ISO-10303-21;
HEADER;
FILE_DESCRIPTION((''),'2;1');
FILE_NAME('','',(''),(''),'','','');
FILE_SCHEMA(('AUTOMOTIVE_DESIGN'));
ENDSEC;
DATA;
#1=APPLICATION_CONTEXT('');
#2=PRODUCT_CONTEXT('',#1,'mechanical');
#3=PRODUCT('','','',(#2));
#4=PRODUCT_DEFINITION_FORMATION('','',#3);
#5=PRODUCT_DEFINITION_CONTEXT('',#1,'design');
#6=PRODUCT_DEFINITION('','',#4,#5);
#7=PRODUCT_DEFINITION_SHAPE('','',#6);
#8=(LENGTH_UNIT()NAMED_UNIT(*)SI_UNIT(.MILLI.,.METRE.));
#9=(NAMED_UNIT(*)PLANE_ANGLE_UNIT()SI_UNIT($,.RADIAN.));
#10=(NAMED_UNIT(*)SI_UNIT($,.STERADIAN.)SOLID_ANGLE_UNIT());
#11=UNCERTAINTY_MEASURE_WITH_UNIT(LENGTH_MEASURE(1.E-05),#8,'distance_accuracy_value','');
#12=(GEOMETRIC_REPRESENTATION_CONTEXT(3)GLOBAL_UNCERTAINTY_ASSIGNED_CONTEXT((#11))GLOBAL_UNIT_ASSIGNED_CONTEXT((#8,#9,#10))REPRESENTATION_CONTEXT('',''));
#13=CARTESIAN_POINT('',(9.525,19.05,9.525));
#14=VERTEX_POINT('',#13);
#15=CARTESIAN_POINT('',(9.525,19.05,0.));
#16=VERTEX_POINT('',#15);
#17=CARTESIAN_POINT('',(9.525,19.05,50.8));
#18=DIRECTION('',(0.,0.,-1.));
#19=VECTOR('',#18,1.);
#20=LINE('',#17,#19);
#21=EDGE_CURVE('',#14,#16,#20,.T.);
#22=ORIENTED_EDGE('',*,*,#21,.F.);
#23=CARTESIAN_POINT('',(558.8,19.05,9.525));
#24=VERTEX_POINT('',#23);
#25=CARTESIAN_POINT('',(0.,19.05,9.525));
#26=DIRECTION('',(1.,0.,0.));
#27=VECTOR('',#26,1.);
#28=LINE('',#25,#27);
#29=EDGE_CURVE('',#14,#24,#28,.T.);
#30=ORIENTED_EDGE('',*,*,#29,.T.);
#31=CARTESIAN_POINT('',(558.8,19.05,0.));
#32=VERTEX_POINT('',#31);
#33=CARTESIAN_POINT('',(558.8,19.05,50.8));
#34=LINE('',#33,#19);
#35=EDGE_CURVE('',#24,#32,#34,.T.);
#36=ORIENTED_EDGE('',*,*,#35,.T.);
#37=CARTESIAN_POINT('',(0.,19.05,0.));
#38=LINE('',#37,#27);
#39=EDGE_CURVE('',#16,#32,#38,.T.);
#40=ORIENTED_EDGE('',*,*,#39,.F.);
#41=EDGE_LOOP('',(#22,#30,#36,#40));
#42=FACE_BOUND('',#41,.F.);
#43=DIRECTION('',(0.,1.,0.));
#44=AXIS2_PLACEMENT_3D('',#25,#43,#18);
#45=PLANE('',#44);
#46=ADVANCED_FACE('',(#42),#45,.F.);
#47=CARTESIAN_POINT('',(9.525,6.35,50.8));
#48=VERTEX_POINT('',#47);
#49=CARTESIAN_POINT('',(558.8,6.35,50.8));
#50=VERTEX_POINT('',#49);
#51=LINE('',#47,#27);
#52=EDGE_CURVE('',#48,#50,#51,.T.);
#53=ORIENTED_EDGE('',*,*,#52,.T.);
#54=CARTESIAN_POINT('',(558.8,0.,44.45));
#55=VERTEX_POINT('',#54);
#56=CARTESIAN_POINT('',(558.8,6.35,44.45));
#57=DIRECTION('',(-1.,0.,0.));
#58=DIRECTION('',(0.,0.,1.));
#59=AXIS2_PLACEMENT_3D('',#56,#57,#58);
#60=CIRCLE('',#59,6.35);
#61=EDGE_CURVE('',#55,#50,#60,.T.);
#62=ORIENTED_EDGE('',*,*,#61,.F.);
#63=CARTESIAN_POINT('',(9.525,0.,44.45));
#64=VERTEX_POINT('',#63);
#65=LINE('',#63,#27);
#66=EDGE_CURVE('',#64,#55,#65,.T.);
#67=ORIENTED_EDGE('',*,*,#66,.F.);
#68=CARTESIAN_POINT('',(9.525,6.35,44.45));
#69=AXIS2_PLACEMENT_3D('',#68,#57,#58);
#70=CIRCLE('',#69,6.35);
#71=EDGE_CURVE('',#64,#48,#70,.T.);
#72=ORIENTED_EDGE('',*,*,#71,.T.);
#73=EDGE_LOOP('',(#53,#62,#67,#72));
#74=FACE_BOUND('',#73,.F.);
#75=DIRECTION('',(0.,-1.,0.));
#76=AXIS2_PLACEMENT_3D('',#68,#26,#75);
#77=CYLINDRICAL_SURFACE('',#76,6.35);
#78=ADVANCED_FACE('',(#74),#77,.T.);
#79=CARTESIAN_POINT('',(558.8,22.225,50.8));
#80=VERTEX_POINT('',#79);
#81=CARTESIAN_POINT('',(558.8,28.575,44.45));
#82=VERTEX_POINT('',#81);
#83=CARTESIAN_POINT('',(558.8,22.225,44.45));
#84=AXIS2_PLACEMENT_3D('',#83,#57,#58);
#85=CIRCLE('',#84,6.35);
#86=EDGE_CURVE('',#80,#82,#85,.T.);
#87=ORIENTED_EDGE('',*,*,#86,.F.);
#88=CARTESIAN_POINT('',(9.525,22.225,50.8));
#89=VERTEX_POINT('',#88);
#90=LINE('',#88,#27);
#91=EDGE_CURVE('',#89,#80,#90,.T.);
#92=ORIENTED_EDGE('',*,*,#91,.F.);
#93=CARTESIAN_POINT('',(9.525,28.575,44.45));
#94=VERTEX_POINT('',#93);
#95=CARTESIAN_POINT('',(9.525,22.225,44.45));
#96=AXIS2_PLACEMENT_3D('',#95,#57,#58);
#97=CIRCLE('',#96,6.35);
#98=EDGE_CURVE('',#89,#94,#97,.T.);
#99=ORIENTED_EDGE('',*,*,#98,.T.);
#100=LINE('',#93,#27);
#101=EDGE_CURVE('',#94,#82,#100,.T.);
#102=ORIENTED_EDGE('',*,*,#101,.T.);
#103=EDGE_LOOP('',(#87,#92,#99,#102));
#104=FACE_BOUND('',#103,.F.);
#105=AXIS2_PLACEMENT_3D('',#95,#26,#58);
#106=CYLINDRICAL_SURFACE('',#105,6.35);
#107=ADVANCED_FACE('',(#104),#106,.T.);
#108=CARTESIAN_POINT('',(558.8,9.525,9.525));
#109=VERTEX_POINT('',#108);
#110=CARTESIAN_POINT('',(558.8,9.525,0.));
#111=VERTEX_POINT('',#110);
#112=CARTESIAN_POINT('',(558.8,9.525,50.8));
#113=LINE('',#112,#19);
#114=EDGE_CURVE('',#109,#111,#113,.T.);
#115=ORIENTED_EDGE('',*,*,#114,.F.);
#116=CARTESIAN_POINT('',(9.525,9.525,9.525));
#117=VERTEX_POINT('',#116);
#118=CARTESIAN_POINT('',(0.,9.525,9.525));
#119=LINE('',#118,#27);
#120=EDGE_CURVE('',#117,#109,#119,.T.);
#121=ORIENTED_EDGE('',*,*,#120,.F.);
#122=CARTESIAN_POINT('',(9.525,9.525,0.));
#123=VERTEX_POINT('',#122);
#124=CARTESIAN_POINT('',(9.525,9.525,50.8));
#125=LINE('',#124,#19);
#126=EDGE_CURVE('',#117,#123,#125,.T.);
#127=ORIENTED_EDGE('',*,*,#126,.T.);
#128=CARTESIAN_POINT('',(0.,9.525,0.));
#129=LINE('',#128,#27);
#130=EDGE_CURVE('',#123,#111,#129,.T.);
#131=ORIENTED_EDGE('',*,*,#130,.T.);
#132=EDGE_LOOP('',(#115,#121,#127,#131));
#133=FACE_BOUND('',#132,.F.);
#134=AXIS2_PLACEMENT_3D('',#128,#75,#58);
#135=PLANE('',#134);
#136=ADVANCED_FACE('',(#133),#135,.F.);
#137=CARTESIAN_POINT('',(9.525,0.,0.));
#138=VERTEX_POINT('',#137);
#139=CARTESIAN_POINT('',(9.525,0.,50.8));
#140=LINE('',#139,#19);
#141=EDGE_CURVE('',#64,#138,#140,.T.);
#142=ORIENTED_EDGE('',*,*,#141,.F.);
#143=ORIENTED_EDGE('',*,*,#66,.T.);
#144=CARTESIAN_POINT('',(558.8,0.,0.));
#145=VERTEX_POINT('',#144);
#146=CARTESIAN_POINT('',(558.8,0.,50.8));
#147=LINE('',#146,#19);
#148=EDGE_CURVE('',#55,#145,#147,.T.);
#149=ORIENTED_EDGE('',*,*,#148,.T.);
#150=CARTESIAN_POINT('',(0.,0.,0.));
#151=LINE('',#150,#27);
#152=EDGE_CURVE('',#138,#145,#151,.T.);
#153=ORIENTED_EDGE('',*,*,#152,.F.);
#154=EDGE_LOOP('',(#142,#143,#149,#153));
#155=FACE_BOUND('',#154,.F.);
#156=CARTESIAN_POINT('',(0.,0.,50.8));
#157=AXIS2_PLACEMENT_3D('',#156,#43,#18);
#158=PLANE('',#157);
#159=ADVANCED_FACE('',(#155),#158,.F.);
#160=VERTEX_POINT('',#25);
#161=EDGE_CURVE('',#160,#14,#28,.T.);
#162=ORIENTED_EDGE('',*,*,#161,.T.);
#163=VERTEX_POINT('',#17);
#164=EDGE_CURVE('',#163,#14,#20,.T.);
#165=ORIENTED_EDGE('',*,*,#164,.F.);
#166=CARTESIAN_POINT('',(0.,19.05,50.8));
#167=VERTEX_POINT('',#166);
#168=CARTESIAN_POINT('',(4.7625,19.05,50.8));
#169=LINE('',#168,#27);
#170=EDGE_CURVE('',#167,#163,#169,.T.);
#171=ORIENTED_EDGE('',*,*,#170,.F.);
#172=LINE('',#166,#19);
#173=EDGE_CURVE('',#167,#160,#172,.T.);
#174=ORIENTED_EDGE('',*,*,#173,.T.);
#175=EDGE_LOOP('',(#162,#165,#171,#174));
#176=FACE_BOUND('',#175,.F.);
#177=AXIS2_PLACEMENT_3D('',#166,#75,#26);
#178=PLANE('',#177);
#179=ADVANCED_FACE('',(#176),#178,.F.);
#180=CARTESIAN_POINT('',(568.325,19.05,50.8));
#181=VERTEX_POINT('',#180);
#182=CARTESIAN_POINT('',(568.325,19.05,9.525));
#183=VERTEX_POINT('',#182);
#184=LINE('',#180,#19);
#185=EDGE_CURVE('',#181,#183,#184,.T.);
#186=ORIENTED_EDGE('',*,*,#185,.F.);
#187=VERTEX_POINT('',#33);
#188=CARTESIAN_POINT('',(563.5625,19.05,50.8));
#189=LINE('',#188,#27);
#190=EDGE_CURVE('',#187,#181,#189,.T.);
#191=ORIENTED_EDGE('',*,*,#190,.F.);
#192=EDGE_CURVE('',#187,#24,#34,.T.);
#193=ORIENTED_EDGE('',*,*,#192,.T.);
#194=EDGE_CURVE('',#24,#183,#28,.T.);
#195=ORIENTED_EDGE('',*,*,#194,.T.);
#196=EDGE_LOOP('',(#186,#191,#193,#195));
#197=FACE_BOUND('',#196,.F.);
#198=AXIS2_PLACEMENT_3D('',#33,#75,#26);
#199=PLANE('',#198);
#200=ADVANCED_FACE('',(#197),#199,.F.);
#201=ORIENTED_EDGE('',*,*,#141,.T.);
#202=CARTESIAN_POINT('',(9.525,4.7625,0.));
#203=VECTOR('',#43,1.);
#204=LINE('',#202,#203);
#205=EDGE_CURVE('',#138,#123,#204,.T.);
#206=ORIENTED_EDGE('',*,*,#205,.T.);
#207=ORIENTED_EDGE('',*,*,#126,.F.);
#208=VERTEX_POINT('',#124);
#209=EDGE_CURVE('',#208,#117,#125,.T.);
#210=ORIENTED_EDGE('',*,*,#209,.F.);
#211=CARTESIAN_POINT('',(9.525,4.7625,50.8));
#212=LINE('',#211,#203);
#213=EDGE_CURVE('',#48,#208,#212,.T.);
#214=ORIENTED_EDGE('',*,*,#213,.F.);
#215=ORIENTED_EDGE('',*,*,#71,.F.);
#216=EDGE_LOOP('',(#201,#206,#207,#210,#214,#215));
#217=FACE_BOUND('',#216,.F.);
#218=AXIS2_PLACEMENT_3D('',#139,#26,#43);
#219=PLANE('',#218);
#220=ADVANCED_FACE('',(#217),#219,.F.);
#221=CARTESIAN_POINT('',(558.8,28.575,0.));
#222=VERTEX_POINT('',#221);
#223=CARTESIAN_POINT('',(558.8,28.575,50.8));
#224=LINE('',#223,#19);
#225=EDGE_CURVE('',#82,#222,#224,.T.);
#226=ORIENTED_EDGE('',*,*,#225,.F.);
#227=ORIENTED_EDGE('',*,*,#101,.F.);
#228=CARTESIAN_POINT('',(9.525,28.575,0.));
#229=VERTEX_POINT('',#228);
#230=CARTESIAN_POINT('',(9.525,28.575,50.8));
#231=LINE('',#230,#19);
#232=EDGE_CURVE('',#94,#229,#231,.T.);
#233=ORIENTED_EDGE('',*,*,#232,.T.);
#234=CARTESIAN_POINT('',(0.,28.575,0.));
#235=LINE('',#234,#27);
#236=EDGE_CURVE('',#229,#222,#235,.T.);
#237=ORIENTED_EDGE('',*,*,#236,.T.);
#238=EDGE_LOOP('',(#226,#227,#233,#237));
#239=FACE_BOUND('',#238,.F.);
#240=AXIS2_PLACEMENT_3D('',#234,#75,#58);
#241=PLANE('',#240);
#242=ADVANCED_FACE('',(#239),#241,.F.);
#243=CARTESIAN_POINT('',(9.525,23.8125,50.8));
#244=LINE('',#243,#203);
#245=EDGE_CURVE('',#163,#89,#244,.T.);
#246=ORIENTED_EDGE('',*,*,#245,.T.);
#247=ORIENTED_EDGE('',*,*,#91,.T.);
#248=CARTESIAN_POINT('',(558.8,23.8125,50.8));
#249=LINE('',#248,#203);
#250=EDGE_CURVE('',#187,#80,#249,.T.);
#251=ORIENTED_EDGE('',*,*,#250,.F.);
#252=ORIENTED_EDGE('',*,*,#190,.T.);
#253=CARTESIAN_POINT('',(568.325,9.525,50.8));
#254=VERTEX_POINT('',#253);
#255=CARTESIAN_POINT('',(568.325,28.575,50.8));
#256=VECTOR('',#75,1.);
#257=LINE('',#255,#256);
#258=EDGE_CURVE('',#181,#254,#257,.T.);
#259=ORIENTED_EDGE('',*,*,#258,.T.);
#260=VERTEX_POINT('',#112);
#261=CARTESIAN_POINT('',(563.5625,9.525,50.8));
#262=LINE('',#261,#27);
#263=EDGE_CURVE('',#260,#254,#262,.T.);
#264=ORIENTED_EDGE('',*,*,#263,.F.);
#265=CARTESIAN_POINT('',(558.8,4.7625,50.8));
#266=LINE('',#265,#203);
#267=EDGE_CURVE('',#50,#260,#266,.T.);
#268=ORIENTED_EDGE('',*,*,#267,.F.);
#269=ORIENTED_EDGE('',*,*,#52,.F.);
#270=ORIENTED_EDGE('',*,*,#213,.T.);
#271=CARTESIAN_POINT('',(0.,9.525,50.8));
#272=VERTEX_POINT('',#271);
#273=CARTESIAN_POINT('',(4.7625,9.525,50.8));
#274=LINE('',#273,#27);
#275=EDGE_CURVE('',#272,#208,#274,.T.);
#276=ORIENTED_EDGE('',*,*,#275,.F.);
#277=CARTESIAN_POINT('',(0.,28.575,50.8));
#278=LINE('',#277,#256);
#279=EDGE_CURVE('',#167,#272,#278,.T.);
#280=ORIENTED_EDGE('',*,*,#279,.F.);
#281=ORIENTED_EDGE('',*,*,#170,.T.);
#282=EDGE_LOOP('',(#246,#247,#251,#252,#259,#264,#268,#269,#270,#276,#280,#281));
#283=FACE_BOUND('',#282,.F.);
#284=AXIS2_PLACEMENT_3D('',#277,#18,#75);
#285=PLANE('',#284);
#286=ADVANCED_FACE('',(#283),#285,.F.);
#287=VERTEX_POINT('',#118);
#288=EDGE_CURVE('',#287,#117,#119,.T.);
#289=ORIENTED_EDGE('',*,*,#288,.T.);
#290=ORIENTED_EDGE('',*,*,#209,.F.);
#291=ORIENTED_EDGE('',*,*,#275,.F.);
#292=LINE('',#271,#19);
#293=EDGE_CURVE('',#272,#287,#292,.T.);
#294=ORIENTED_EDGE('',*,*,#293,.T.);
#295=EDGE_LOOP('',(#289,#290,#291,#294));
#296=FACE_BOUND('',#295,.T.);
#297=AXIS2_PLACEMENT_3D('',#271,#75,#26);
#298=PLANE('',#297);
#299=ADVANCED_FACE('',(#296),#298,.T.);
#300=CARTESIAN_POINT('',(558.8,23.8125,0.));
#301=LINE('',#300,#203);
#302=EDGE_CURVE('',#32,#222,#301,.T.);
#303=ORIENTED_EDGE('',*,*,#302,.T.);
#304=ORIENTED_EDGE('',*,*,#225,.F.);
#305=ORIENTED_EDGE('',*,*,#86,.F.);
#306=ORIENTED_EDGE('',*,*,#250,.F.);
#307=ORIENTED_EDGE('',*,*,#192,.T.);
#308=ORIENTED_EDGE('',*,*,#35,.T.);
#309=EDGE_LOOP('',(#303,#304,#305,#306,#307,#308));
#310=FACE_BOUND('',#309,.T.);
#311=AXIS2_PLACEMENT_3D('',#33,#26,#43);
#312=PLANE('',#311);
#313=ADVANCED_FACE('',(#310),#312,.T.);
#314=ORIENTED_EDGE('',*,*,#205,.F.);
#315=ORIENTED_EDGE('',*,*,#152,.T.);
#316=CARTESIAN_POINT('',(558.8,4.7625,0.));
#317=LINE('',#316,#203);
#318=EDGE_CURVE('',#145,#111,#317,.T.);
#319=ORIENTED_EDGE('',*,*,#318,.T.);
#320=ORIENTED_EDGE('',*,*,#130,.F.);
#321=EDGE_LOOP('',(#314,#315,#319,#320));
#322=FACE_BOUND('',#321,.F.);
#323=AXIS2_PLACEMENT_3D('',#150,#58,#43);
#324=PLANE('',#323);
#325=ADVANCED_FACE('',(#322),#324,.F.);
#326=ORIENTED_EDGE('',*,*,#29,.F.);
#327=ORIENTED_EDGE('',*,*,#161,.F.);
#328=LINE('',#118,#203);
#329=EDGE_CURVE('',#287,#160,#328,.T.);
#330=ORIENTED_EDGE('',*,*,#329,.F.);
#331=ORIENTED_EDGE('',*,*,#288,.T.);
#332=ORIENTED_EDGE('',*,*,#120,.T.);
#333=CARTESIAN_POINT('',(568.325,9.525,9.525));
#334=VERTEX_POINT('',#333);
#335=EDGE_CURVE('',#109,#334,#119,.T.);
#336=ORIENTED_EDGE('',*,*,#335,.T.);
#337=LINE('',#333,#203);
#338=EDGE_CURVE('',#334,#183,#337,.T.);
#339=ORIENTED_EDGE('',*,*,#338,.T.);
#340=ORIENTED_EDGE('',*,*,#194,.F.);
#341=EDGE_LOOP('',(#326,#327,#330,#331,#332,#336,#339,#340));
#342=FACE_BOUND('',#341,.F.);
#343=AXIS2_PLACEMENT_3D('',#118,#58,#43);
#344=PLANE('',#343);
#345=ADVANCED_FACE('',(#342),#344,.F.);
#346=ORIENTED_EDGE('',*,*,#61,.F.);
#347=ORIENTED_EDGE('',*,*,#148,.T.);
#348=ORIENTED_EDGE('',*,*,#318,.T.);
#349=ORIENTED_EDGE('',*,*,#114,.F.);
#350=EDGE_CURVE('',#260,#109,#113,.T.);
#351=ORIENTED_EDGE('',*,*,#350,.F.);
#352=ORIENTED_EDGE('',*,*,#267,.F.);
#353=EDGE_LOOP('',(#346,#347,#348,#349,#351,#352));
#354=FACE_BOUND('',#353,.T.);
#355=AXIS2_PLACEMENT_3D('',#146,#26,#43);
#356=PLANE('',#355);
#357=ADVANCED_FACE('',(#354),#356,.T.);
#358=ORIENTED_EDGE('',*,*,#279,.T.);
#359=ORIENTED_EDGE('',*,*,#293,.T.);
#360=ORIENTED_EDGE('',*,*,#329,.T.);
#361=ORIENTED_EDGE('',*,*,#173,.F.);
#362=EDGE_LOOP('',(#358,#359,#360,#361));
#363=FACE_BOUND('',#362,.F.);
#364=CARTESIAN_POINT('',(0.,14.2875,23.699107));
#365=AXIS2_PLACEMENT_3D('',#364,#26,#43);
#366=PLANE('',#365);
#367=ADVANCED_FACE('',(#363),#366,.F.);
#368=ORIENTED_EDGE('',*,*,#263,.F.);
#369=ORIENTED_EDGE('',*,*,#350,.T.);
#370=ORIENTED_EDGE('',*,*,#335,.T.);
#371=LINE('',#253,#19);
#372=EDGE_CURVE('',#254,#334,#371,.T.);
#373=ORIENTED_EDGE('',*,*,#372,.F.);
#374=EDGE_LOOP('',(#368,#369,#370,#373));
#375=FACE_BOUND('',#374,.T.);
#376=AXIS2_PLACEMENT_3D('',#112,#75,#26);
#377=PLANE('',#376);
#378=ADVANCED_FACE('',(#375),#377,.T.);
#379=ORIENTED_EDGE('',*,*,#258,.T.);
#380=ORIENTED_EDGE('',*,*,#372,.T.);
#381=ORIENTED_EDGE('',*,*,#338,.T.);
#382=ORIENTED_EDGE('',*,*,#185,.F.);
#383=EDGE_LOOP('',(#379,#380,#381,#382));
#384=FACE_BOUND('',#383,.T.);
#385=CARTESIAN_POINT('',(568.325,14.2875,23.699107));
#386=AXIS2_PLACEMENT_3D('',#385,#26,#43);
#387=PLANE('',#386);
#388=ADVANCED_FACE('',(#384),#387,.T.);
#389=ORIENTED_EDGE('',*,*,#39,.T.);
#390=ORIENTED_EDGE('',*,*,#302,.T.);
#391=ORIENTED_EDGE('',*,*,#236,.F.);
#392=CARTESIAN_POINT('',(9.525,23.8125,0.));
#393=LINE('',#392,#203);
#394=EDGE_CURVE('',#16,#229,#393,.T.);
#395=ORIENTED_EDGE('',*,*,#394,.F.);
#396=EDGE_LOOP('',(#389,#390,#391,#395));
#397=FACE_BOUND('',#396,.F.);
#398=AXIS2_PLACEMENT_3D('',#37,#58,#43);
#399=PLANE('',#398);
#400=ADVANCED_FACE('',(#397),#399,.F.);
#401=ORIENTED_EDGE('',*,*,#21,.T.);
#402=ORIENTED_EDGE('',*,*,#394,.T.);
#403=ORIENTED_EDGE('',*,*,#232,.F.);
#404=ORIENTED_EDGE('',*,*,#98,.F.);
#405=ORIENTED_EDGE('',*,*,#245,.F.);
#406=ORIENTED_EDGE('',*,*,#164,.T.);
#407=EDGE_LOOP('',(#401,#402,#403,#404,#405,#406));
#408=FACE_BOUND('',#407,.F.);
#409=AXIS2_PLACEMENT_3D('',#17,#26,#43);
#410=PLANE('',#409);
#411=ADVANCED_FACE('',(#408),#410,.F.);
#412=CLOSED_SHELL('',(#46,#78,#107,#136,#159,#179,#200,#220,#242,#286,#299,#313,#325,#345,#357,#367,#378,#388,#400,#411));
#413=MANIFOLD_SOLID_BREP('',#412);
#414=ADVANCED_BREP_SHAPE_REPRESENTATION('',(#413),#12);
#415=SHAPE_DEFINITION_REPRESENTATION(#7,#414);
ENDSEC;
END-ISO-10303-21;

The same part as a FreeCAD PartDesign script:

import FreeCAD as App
import Part
import Sketcher
from FreeCAD import Vector
Q = App.Units.Quantity


def edges_at(feature, points):
    """Names of the edges that pass closest to the given points."""
    edges = feature.Shape.Edges
    near = lambda p: min(range(len(edges)), key=lambda i: edges[i].distToShape(Part.Vertex(*p))[0])
    return sorted({f"Edge{near(p) + 1}" for p in points})

doc = App.newDocument("Part")
params = doc.addObject("Spreadsheet::Sheet", "Params")
for row, (alias, value) in enumerate([
    ("sketch1_height", "2 in"),
    ("sketch1_width", "0.375 in"),
    ("pad1_length", "22.375 in"),
    ("sketch2_width", "0.375 in"),
    ("pocket1_length", "2 in"),
    ("fillet_radius", "0.25 in"),
], start=1):
    params.set(f"A{row}", alias)
    params.set(f"B{row}", "=" + value)
    params.setAlias(f"B{row}", alias)

body = doc.addObject("PartDesign::Body", "Body")

# Sketch on YZ plane
sketch1 = body.newObject("Sketcher::SketchObject", "Sketch")
sketch1.AttachmentSupport = (doc.getObject("YZ_Plane"), [""])
sketch1.MapMode = "FlatFace"
sketch1.addGeometry([
    Part.LineSegment(Vector(0, 51, 0), Vector(0, 0, 0)),  # 0
    Part.LineSegment(Vector(0, 0, 0), Vector(10, 0, 0)),  # 1
    Part.LineSegment(Vector(10, 0, 0), Vector(10, 10, 0)),  # 2
    Part.LineSegment(Vector(10, 10, 0), Vector(19, 10, 0)),  # 3
    Part.LineSegment(Vector(19, 10, 0), Vector(19, 0, 0)),  # 4
    Part.LineSegment(Vector(19, 0, 0), Vector(29, 0, 0)),  # 5
    Part.LineSegment(Vector(29, 0, 0), Vector(29, 51, 0)),  # 6
    Part.LineSegment(Vector(29, 51, 0), Vector(0, 51, 0)),  # 7
], False)
sketch1.addConstraint([
    Sketcher.Constraint("Coincident", 0, 2, 1, 1),
    Sketcher.Constraint("Coincident", 1, 2, 2, 1),
    Sketcher.Constraint("Coincident", 2, 2, 3, 1),
    Sketcher.Constraint("Coincident", 3, 2, 4, 1),
    Sketcher.Constraint("Coincident", 4, 2, 5, 1),
    Sketcher.Constraint("Coincident", 5, 2, 6, 1),
    Sketcher.Constraint("Coincident", 6, 2, 7, 1),
    Sketcher.Constraint("Coincident", 7, 2, 0, 1),
    Sketcher.Constraint("Vertical", 0),
    Sketcher.Constraint("Horizontal", 1),
    Sketcher.Constraint("Vertical", 2),
    Sketcher.Constraint("Horizontal", 3),
    Sketcher.Constraint("Vertical", 4),
    Sketcher.Constraint("Horizontal", 5),
    Sketcher.Constraint("Vertical", 6),
    Sketcher.Constraint("Horizontal", 7),
    Sketcher.Constraint("Coincident", 0, 2, -1, 1),
    Sketcher.Constraint("PointOnObject", 4, 2, -1),
    Sketcher.Constraint("Equal", 1, 3),
    Sketcher.Constraint("Equal", 3, 5),
    Sketcher.Constraint("Equal", 5, 2),
    Sketcher.Constraint("DistanceY", 0, 2, 0, 1, Q("2 in")),
    Sketcher.Constraint("DistanceX", 1, 1, 1, 2, Q("0.375 in")),
])
sketch1.setExpression("Constraints[21]", "Params.sketch1_height")
sketch1.setExpression("Constraints[22]", "Params.sketch1_width")
pad1 = body.newObject("PartDesign::Pad", "Pad")
pad1.Profile = sketch1
pad1.setExpression("Length", "Params.pad1_length")

# Sketch on XY plane
sketch2 = body.newObject("Sketcher::SketchObject", "Sketch001")
sketch2.AttachmentSupport = (doc.getObject("XY_Plane"), [""])
sketch2.MapMode = "FlatFace"
sketch2.AttachmentOffset = App.Placement(Vector(0, 0, 2 * 25.4), App.Rotation())
sketch2.addGeometry([
    Part.LineSegment(Vector(0, 29, 0), Vector(0, 19, 0)),  # 0
    Part.LineSegment(Vector(0, 19, 0), Vector(10, 19, 0)),  # 1
    Part.LineSegment(Vector(10, 19, 0), Vector(10, 29, 0)),  # 2
    Part.LineSegment(Vector(10, 29, 0), Vector(0, 29, 0)),  # 3
    Part.LineSegment(Vector(0, 10, 0), Vector(0, 0, 0)),  # 4
    Part.LineSegment(Vector(0, 0, 0), Vector(10, 0, 0)),  # 5
    Part.LineSegment(Vector(10, 0, 0), Vector(10, 10, 0)),  # 6
    Part.LineSegment(Vector(10, 10, 0), Vector(0, 10, 0)),  # 7
    Part.LineSegment(Vector(559, 29, 0), Vector(559, 19, 0)),  # 8
    Part.LineSegment(Vector(559, 19, 0), Vector(568, 19, 0)),  # 9
    Part.LineSegment(Vector(568, 19, 0), Vector(568, 29, 0)),  # 10
    Part.LineSegment(Vector(568, 29, 0), Vector(559, 29, 0)),  # 11
    Part.LineSegment(Vector(559, 10, 0), Vector(559, 0, 0)),  # 12
    Part.LineSegment(Vector(559, 0, 0), Vector(568, 0, 0)),  # 13
    Part.LineSegment(Vector(568, 0, 0), Vector(568, 10, 0)),  # 14
    Part.LineSegment(Vector(568, 10, 0), Vector(559, 10, 0)),  # 15
], False)
sketch2.addConstraint([
    Sketcher.Constraint("Coincident", 0, 2, 1, 1),
    Sketcher.Constraint("Coincident", 1, 2, 2, 1),
    Sketcher.Constraint("Coincident", 2, 2, 3, 1),
    Sketcher.Constraint("Coincident", 3, 2, 0, 1),
    Sketcher.Constraint("Coincident", 4, 2, 5, 1),
    Sketcher.Constraint("Coincident", 5, 2, 6, 1),
    Sketcher.Constraint("Coincident", 6, 2, 7, 1),
    Sketcher.Constraint("Coincident", 7, 2, 4, 1),
    Sketcher.Constraint("Coincident", 8, 2, 9, 1),
    Sketcher.Constraint("Coincident", 9, 2, 10, 1),
    Sketcher.Constraint("Coincident", 10, 2, 11, 1),
    Sketcher.Constraint("Coincident", 11, 2, 8, 1),
    Sketcher.Constraint("Coincident", 12, 2, 13, 1),
    Sketcher.Constraint("Coincident", 13, 2, 14, 1),
    Sketcher.Constraint("Coincident", 14, 2, 15, 1),
    Sketcher.Constraint("Coincident", 15, 2, 12, 1),
    Sketcher.Constraint("Vertical", 0),
    Sketcher.Constraint("Horizontal", 1),
    Sketcher.Constraint("Vertical", 2),
    Sketcher.Constraint("Horizontal", 3),
    Sketcher.Constraint("Vertical", 4),
    Sketcher.Constraint("Horizontal", 5),
    Sketcher.Constraint("Vertical", 6),
    Sketcher.Constraint("Horizontal", 7),
    Sketcher.Constraint("Vertical", 8),
    Sketcher.Constraint("Horizontal", 9),
    Sketcher.Constraint("Vertical", 10),
    Sketcher.Constraint("Horizontal", 11),
    Sketcher.Constraint("Vertical", 12),
    Sketcher.Constraint("Horizontal", 13),
    Sketcher.Constraint("Vertical", 14),
    Sketcher.Constraint("Horizontal", 15),
    Sketcher.Constraint("Coincident", 4, 2, -1, 1),
    Sketcher.Constraint("PointOnObject", 0, 2, -2),
    Sketcher.Constraint("PointOnObject", 12, 2, -1),
    Sketcher.Constraint("Horizontal", 1, 2, 8, 2),
    Sketcher.Constraint("Horizontal", 3, 2, 10, 2),
    Sketcher.Constraint("Horizontal", 7, 2, 14, 2),
    Sketcher.Constraint("Vertical", 2, 2, 5, 2),
    Sketcher.Constraint("Vertical", 11, 2, 12, 2),
    Sketcher.Constraint("Vertical", 10, 2, 13, 2),
    Sketcher.Constraint("Equal", 7, 9),
    Sketcher.Constraint("Equal", 15, 0),
    Sketcher.Constraint("Equal", 2, 4),
    Sketcher.Constraint("DistanceX", -1, 1, 8, 2, Q("22 in")),
    Sketcher.Constraint("DistanceX", 1, 1, 1, 2, Q("0.375 in")),
    Sketcher.Constraint("DistanceY", -1, 1, 0, 2, Q("0.75 in")),
])
sketch2.setExpression("Constraints[45]", "Params.sketch2_width")
pocket1 = body.newObject("PartDesign::Pocket", "Pocket")
pocket1.Profile = sketch2
pocket1.setExpression("Length", "Params.pocket1_length")
doc.recompute()

fillet = body.newObject("PartDesign::Fillet", "Fillet")
fillet.Base = (pocket1, edges_at(pocket1, [(284.163, 0, 50.8), (284.163, 28.575, 50.8)]))
fillet.setExpression("Radius", "Params.fillet_radius")

doc.recompute()
